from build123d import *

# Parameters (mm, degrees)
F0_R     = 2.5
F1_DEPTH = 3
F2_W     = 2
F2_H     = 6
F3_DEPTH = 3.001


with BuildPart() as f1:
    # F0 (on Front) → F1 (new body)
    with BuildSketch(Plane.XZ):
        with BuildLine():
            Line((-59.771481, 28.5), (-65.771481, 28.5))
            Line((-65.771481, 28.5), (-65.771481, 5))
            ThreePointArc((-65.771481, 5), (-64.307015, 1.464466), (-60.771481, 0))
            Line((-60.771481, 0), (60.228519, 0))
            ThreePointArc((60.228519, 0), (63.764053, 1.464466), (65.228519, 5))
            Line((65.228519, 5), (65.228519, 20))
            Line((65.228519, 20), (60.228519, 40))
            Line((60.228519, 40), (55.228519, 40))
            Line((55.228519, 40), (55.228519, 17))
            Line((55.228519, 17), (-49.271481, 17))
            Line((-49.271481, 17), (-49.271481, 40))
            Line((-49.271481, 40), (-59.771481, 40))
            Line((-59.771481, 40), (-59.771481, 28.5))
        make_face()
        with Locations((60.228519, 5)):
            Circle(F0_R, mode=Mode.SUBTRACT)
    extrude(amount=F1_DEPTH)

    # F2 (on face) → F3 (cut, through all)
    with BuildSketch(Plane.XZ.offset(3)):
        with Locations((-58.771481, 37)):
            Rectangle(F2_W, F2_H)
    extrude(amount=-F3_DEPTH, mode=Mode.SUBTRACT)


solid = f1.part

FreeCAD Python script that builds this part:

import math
import FreeCAD as App
import Part
import Sketcher
from FreeCAD import Vector


def add_polygon(sketch, points):
    """Adds a closed chain of lines whose ends are joined by coincident constraints."""
    first, n = sketch.GeometryCount, len(points)
    for a, b in zip(points, points[1:] + points[:1]):
        sketch.addGeometry(Part.LineSegment(App.Vector(*a, 0), App.Vector(*b, 0)), False)
    for i in range(n):
        sketch.addConstraint(Sketcher.Constraint("Coincident", first + i, 2, first + (i + 1) % n, 1))

doc = App.newDocument("Part")
params = doc.addObject("Spreadsheet::Sheet", "Params")
for row, (alias, value) in enumerate([
    ("sketch1_diameter", "5 mm"),
    ("sketch1_radius", "5 mm"),
    ("sketch1_width", "6 mm"),
    ("sketch1_width2", "121 mm"),
    ("sketch1_width3", "5 mm"),
    ("pad1_length", "3 mm"),
    ("sketch2_width", "2 mm"),
    ("sketch2_height", "6 mm"),
], start=1):
    params.set(f"A{row}", alias)
    params.set(f"B{row}", "=" + value)
    params.setAlias(f"B{row}", alias)

body = doc.addObject("PartDesign::Body", "Body")

# Sketch on XZ plane
sketch1 = body.newObject("Sketcher::SketchObject", "Sketch")
sketch1.AttachmentSupport = (doc.getObject("XZ_Plane"), [""])
sketch1.MapMode = "FlatFace"
sketch1.addGeometry(Part.LineSegment(Vector(-59.771481, 28.5, 0), Vector(-65.771481, 28.5, 0)), False)
sketch1.addGeometry(Part.LineSegment(Vector(-65.771481, 28.5, 0), Vector(-65.771481, 5, 0)), False)
sketch1.addGeometry(Part.ArcOfCircle(Part.Circle(Vector(-60.771481, 5, 0), Vector(0, 0, 1), 5), math.radians(179.999996), math.radians(270.000004)), False)
sketch1.addGeometry(Part.LineSegment(Vector(-60.771481, 0, 0), Vector(60.228519, 0, 0)), False)
sketch1.addGeometry(Part.ArcOfCircle(Part.Circle(Vector(60.228519, 5, 0), Vector(0, 0, 1), 5), math.radians(-90.000004), math.radians(0.000004)), False)
sketch1.addGeometry(Part.LineSegment(Vector(65.228519, 5, 0), Vector(65.228519, 20, 0)), False)
sketch1.addGeometry(Part.LineSegment(Vector(65.228519, 20, 0), Vector(60.228519, 40, 0)), False)
sketch1.addGeometry(Part.LineSegment(Vector(60.228519, 40, 0), Vector(55.228519, 40, 0)), False)
sketch1.addGeometry(Part.LineSegment(Vector(55.228519, 40, 0), Vector(55.228519, 17, 0)), False)
sketch1.addGeometry(Part.LineSegment(Vector(55.228519, 17, 0), Vector(-49.271481, 17, 0)), False)
sketch1.addGeometry(Part.LineSegment(Vector(-49.271481, 17, 0), Vector(-49.271481, 40, 0)), False)
sketch1.addGeometry(Part.LineSegment(Vector(-49.271481, 40, 0), Vector(-59.771481, 40, 0)), False)
sketch1.addGeometry(Part.LineSegment(Vector(-59.771481, 40, 0), Vector(-59.771481, 28.5, 0)), False)
sketch1.addGeometry(Part.Circle(Vector(60.228519, 5, 0), Vector(0, 0, 1), 2.5), False)
sketch1.addConstraint(Sketcher.Constraint("Coincident", 0, 2, 1, 1))
sketch1.addConstraint(Sketcher.Constraint("Tangent", 1, 2, 2, 1))
sketch1.addConstraint(Sketcher.Constraint("Tangent", 2, 2, 3, 1))
sketch1.addConstraint(Sketcher.Constraint("Tangent", 3, 2, 4, 1))
sketch1.addConstraint(Sketcher.Constraint("Tangent", 4, 2, 5, 1))
sketch1.addConstraint(Sketcher.Constraint("Coincident", 5, 2, 6, 1))
sketch1.addConstraint(Sketcher.Constraint("Coincident", 6, 2, 7, 1))
sketch1.addConstraint(Sketcher.Constraint("Coincident", 7, 2, 8, 1))
sketch1.addConstraint(Sketcher.Constraint("Coincident", 8, 2, 9, 1))
sketch1.addConstraint(Sketcher.Constraint("Coincident", 9, 2, 10, 1))
sketch1.addConstraint(Sketcher.Constraint("Coincident", 10, 2, 11, 1))
sketch1.addConstraint(Sketcher.Constraint("Coincident", 11, 2, 12, 1))
sketch1.addConstraint(Sketcher.Constraint("Coincident", 12, 2, 0, 1))
sketch1.addConstraint(Sketcher.Constraint("Horizontal", 0))
sketch1.addConstraint(Sketcher.Constraint("Vertical", 1))
sketch1.addConstraint(Sketcher.Constraint("Horizontal", 3))
sketch1.addConstraint(Sketcher.Constraint("Vertical", 5))
sketch1.addConstraint(Sketcher.Constraint("Horizontal", 7))
sketch1.addConstraint(Sketcher.Constraint("Vertical", 8))
sketch1.addConstraint(Sketcher.Constraint("Horizontal", 9))
sketch1.addConstraint(Sketcher.Constraint("Vertical", 10))
sketch1.addConstraint(Sketcher.Constraint("Horizontal", 11))
sketch1.addConstraint(Sketcher.Constraint("Vertical", 12))
sketch1.addConstraint(Sketcher.Constraint("Coincident", 13, 3, 4, 3))
sketch1.addConstraint(Sketcher.Constraint("Equal", 2, 4))
sketch1.addConstraint(Sketcher.Constraint("PointOnObject", 2, 2, -1))
sketch1.addConstraint(Sketcher.Constraint("Horizontal", 7, 2, 10, 2))
sketch1.addConstraint(Sketcher.Constraint("Vertical", 3, 2, 6, 2))
sketch1.addConstraint(Sketcher.Constraint("Diameter", 13, 5.0))
sketch1.addConstraint(Sketcher.Constraint("Radius", 2, 5.0))
sketch1.addConstraint(Sketcher.Constraint("DistanceX", 0, 2, 0, 1, 6.0))
sketch1.addConstraint(Sketcher.Constraint("DistanceX", 3, 1, 3, 2, 121.0))
sketch1.addConstraint(Sketcher.Constraint("DistanceX", 7, 2, 7, 1, 5.0))
sketch1.addConstraint(Sketcher.Constraint("DistanceY", 5, 1, 5, 2, 15.0))
sketch1.addConstraint(Sketcher.Constraint("DistanceY", 8, 2, 8, 1, 23.0))
sketch1.addConstraint(Sketcher.Constraint("DistanceX", 9, 2, 9, 1, 104.5))
sketch1.addConstraint(Sketcher.Constraint("DistanceY", 1, 2, 1, 1, 23.5))
sketch1.addConstraint(Sketcher.Constraint("DistanceY", 12, 2, 12, 1, 11.5))
sketch1.addConstraint(Sketcher.Constraint("DistanceX", 2, 3, -1, 1, 60.771481))
sketch1.setExpression("Constraints[28]", "Params.sketch1_diameter")
sketch1.setExpression("Constraints[29]", "Params.sketch1_radius")
sketch1.setExpression("Constraints[30]", "Params.sketch1_width")
sketch1.setExpression("Constraints[31]", "Params.sketch1_width2")
sketch1.setExpression("Constraints[32]", "Params.sketch1_width3")
pad1 = body.newObject("PartDesign::Pad", "Pad")
pad1.Profile = sketch1
pad1.setExpression("Length", "Params.pad1_length")

# Sketch on XZ plane
sketch2 = body.newObject("Sketcher::SketchObject", "Sketch001")
sketch2.AttachmentSupport = (doc.getObject("XZ_Plane"), [""])
sketch2.MapMode = "FlatFace"
sketch2.AttachmentOffset = App.Placement(Vector(0, 0, 3), App.Rotation())
add_polygon(sketch2, [(-59.771481, 40), (-59.771481, 34), (-57.771481, 34), (-57.771481, 40)])  # lines 0-3
sketch2.addConstraint(Sketcher.Constraint("Vertical", 0))
sketch2.addConstraint(Sketcher.Constraint("Horizontal", 1))
sketch2.addConstraint(Sketcher.Constraint("Vertical", 2))
sketch2.addConstraint(Sketcher.Constraint("Horizontal", 3))
sketch2.addConstraint(Sketcher.Constraint("DistanceX", 1, 1, 1, 2, 2.0))
sketch2.addConstraint(Sketcher.Constraint("DistanceY", 0, 2, 0, 1, 6.0))
sketch2.addConstraint(Sketcher.Constraint("DistanceY", -1, 1, 0, 2, 34.0))
sketch2.addConstraint(Sketcher.Constraint("DistanceX", 0, 2, -1, 1, 59.771481))
sketch2.setExpression("Constraints[8]", "Params.sketch2_width")
sketch2.setExpression("Constraints[9]", "Params.sketch2_height")
pocket1 = body.newObject("PartDesign::Pocket", "Pocket")
pocket1.Profile = sketch2
pocket1.Type = "ThroughAll"

doc.recompute()
